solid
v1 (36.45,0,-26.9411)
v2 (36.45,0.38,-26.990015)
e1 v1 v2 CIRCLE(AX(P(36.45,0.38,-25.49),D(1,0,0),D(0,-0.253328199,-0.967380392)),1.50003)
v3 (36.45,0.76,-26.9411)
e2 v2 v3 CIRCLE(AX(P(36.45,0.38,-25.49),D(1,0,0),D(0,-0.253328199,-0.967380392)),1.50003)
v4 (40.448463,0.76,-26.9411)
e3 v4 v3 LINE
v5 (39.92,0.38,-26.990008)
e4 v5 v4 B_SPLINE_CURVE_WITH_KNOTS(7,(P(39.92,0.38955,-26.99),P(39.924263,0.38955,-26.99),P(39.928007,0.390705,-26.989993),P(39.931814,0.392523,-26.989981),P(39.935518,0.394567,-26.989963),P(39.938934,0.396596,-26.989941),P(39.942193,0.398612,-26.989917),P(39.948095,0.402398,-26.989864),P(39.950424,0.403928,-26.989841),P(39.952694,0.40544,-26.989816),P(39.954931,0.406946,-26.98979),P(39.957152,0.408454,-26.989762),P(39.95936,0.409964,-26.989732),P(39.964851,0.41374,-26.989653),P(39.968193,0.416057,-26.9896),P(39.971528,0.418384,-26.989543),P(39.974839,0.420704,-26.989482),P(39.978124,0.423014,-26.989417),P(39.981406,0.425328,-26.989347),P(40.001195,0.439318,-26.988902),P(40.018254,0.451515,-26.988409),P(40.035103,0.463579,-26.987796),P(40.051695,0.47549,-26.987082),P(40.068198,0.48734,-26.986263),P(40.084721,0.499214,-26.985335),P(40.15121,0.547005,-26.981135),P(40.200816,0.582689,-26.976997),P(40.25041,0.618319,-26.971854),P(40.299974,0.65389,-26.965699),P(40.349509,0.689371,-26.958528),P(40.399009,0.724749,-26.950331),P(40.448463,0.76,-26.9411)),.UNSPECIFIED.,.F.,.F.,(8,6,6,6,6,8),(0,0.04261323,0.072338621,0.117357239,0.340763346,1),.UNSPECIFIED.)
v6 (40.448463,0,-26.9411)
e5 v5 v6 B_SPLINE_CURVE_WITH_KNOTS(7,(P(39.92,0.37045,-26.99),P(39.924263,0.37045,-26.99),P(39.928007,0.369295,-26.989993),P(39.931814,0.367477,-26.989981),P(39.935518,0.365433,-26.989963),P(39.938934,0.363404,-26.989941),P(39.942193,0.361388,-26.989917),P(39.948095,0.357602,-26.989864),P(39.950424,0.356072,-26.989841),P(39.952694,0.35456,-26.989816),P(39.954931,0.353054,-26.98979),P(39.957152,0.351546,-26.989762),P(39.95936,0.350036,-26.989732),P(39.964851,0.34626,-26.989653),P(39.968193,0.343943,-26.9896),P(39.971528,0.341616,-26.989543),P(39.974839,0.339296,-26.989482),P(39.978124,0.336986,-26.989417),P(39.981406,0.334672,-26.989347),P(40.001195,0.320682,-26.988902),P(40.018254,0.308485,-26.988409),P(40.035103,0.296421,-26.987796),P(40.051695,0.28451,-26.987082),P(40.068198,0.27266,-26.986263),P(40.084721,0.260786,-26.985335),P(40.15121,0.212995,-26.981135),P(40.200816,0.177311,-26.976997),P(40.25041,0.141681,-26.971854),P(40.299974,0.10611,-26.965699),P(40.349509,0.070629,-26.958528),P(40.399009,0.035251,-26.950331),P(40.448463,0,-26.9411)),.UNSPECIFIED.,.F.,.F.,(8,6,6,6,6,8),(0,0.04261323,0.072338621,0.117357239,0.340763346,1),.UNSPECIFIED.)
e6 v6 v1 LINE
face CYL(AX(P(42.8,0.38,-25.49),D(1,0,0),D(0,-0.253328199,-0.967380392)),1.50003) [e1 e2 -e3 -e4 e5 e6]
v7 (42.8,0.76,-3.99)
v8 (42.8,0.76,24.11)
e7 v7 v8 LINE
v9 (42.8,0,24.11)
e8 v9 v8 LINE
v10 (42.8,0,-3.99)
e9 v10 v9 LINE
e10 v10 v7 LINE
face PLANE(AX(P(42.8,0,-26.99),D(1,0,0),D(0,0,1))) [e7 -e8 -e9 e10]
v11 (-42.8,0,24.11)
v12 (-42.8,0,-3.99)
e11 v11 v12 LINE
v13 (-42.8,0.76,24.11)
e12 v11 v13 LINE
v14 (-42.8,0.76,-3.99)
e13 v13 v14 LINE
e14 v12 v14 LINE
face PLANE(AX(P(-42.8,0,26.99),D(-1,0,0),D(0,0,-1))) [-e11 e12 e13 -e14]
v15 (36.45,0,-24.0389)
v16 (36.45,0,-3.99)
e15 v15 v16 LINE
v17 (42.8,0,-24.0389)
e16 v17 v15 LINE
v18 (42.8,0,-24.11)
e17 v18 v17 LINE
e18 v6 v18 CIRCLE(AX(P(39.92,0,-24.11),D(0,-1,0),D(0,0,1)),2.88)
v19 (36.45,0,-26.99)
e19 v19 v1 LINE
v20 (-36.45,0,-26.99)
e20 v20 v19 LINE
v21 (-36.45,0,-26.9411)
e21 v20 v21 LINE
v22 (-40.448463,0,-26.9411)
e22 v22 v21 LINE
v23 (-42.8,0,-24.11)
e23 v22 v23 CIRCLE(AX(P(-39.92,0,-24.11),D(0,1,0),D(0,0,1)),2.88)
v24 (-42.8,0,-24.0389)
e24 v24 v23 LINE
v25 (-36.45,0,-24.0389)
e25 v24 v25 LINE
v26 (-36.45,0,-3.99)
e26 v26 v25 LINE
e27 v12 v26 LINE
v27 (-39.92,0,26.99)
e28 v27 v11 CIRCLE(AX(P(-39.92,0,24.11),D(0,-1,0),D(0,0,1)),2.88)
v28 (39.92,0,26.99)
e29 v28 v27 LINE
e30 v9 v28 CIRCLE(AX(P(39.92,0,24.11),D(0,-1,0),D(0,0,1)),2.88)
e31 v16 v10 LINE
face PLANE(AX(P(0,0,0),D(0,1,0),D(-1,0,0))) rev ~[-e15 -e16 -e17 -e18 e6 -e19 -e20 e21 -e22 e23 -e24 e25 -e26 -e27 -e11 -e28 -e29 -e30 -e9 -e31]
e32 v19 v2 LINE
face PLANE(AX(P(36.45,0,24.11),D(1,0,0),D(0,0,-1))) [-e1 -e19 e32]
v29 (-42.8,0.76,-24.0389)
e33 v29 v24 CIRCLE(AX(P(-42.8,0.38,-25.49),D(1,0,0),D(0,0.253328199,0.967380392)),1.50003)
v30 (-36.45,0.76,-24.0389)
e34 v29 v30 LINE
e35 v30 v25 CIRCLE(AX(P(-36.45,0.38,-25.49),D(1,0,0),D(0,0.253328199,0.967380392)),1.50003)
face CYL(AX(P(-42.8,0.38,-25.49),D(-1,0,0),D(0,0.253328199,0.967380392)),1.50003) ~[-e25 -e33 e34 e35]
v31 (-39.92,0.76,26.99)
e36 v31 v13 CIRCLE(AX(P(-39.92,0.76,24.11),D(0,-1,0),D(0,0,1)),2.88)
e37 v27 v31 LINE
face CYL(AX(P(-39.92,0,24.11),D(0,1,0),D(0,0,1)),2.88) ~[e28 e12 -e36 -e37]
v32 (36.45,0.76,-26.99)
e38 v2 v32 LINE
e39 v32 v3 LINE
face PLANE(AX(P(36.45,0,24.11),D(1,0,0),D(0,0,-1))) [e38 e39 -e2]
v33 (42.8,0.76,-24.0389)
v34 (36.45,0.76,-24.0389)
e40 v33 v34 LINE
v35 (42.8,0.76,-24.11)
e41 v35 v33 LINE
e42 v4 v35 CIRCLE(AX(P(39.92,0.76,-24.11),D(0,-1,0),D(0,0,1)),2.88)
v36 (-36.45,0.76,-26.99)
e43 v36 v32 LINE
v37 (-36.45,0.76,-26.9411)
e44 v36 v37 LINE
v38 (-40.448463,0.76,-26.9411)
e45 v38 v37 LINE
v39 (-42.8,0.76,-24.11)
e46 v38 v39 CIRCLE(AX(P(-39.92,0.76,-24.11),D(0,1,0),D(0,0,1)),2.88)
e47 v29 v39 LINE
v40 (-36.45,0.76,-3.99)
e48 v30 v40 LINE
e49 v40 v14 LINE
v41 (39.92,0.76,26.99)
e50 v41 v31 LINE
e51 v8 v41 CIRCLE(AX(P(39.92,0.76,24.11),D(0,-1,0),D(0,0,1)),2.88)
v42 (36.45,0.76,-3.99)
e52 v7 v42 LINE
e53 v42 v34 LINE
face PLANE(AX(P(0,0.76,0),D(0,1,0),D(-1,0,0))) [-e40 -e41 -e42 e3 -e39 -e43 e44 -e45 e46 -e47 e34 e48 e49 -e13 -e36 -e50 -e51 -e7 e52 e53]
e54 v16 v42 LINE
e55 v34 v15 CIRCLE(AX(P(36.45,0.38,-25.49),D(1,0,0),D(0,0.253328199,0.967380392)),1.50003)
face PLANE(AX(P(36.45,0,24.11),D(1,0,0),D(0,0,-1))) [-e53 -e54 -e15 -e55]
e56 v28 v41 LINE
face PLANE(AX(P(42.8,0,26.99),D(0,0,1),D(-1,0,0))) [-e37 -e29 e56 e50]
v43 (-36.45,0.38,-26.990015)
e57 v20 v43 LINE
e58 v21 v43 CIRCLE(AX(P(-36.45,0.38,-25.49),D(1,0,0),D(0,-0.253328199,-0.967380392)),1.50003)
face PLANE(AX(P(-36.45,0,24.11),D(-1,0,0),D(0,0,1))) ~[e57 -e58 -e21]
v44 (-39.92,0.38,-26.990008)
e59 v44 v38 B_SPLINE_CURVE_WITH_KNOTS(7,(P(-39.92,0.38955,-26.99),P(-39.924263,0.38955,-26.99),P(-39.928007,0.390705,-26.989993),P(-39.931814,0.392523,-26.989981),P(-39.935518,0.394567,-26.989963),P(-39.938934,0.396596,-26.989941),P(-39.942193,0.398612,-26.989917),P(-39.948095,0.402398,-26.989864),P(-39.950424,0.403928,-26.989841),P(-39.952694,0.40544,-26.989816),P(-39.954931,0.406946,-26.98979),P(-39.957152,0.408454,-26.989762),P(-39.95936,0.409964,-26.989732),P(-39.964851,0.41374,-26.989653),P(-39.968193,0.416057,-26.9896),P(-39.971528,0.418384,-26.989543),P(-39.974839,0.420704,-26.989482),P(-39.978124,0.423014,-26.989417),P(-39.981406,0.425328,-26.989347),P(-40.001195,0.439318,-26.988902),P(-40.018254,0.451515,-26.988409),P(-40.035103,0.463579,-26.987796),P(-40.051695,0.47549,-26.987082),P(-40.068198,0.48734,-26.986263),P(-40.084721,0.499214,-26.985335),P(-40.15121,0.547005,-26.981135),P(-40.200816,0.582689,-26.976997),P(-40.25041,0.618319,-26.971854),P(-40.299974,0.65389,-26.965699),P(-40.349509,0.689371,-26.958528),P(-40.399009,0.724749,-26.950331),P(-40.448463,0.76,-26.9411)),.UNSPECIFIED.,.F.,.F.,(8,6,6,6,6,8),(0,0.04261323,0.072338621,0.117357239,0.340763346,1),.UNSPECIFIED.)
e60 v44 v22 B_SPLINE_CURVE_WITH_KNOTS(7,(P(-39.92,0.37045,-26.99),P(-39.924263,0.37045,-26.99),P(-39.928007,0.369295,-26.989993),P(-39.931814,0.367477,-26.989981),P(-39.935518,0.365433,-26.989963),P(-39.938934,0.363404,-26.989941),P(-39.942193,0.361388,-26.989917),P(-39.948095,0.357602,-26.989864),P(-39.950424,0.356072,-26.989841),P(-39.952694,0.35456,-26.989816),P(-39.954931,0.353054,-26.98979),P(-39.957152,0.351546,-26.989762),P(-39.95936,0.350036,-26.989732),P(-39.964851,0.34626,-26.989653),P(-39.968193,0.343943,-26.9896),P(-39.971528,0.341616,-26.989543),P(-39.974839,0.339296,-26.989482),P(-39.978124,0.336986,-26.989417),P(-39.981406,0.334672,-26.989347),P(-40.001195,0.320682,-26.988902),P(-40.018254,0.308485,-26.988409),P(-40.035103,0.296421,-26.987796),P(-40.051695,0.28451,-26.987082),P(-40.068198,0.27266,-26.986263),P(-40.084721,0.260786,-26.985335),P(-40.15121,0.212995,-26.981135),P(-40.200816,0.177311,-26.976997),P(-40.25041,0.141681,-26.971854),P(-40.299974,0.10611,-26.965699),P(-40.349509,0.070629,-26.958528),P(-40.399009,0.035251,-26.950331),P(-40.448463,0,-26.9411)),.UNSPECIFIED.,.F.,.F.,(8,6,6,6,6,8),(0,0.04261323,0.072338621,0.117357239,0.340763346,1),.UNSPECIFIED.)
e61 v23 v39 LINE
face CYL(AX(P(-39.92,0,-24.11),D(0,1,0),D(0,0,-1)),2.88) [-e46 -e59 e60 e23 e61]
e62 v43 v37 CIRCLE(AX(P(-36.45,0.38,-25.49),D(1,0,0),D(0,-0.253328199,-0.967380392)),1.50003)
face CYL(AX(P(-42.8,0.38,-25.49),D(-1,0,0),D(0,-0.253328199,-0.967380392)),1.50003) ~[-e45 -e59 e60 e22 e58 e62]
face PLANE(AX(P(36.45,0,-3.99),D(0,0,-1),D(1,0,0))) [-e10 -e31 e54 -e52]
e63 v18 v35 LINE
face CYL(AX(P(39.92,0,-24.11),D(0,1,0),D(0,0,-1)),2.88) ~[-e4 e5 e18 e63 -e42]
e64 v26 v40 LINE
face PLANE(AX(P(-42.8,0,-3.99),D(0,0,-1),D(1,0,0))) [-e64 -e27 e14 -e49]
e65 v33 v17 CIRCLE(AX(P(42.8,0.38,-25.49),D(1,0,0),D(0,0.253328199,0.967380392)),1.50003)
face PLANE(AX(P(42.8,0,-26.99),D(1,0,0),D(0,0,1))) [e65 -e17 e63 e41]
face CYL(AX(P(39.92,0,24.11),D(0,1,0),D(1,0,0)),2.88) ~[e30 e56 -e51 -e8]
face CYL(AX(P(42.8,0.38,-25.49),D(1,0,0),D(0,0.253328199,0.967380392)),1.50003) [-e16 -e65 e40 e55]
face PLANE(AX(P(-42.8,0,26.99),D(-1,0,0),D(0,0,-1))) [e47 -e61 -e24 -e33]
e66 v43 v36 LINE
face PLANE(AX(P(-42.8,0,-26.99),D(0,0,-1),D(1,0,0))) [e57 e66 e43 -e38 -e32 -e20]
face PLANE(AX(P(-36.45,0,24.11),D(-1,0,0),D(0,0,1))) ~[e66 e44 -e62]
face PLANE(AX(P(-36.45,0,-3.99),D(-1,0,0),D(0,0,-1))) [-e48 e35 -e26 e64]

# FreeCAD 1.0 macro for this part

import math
import FreeCAD as App
import Part
import Sketcher
Q = App.Units.Quantity


def edges_at(feature, points):
    """Names of the edges that pass closest to the given points."""
    edges = feature.Shape.Edges
    near = lambda p: min(range(len(edges)), key=lambda i: edges[i].distToShape(Part.Vertex(*p))[0])
    return sorted({f"Edge{near(p) + 1}" for p in points})


def add_polygon(sketch, points):
    """Adds a closed chain of lines whose ends are joined by coincident constraints."""
    first, n = sketch.GeometryCount, len(points)
    for a, b in zip(points, points[1:] + points[:1]):
        sketch.addGeometry(Part.LineSegment(App.Vector(*a, 0), App.Vector(*b, 0)), False)
    for i in range(n):
        sketch.addConstraint(Sketcher.Constraint("Coincident", first + i, 2, first + (i + 1) % n, 1))

doc = App.newDocument("Part")
body = doc.addObject("PartDesign::Body", "Body")

# Sketch on XZ plane
sketch1 = body.newObject("Sketcher::SketchObject", "Sketch")
sketch1.AttachmentSupport = (doc.getObject("XZ_Plane"), [""])
sketch1.MapMode = "FlatFace"
add_polygon(sketch1, [(43, -27), (-43, -27), (-43, 27), (43, 27)])  # lines 0-3
sketch1.addConstraint(Sketcher.Constraint("Horizontal", 0))
sketch1.addConstraint(Sketcher.Constraint("Vertical", 1))
sketch1.addConstraint(Sketcher.Constraint("Horizontal", 2))
sketch1.addConstraint(Sketcher.Constraint("Vertical", 3))
sketch1.addConstraint(Sketcher.Constraint("Symmetric", 0, 2, 2, 2, -1, 1))
sketch1.addConstraint(Sketcher.Constraint("DistanceX", 0, 2, 0, 1, Q("85.6 mm")))
sketch1.addConstraint(Sketcher.Constraint("DistanceY", 1, 1, 1, 2, Q("53.98 mm")))
pad1 = body.newObject("PartDesign::Pad", "Pad")
pad1.Profile = sketch1
pad1.Length = 0.76
pad1.Reversed = True
doc.recompute()

fillet = body.newObject("PartDesign::Fillet", "Fillet")
fillet.Base = (pad1, edges_at(pad1, [
    (42.8, 0.38, 26.99),
    (42.8, 0.38, -26.99),
    (-42.8, 0.38, 26.99),
    (-42.8, 0.38, -26.99),
]))
fillet.Radius = 2.88

# Sketch on XZ plane
sketch2 = body.newObject("Sketcher::SketchObject", "Sketch001")
sketch2.AttachmentSupport = (doc.getObject("XZ_Plane"), [""])
sketch2.MapMode = "FlatFace"
add_polygon(sketch2, [(-43, -4), (-43, -24), (-36, -24), (-36, -4)])  # lines 0-3
add_polygon(sketch2, [(36, -24), (43, -24), (43, -4), (36, -4)])  # lines 4-7
sketch2.addConstraint(Sketcher.Constraint("Vertical", 0))
sketch2.addConstraint(Sketcher.Constraint("Horizontal", 1))
sketch2.addConstraint(Sketcher.Constraint("Vertical", 2))
sketch2.addConstraint(Sketcher.Constraint("Horizontal", 3))
sketch2.addConstraint(Sketcher.Constraint("Horizontal", 4))
sketch2.addConstraint(Sketcher.Constraint("Vertical", 5))
sketch2.addConstraint(Sketcher.Constraint("Horizontal", 6))
sketch2.addConstraint(Sketcher.Constraint("Vertical", 7))
sketch2.addConstraint(Sketcher.Constraint("Symmetric", 0, 2, 4, 2, -2))
sketch2.addConstraint(Sketcher.Constraint("Symmetric", 2, 2, 6, 2, -2))
sketch2.addConstraint(Sketcher.Constraint("DistanceY", 0, 2, 0, 1, Q("20 mm")))
sketch2.addConstraint(Sketcher.Constraint("DistanceX", 1, 1, 1, 2, Q("6.35 mm")))
sketch2.addConstraint(Sketcher.Constraint("DistanceX", 0, 2, -1, 1, Q("42.8 mm")))
sketch2.addConstraint(Sketcher.Constraint("DistanceY", 0, 2, -1, 1, Q("23.99 mm")))
pocket1 = body.newObject("PartDesign::Pocket", "Pocket")
pocket1.Profile = sketch2
pocket1.Type = "ThroughAll"

# Sketch on YZ plane
sketch3 = body.newObject("Sketcher::SketchObject", "Sketch002")
sketch3.AttachmentSupport = (doc.getObject("YZ_Plane"), [""])
sketch3.MapMode = "FlatFace"
sketch3.AttachmentOffset = App.Placement(App.Vector(0, 0, 42.8), App.Rotation())
sketch3.addGeometry(Part.LineSegment(App.Vector(0, -26.941, 0), App.Vector(0, -26.99, 0)), False)
sketch3.addGeometry(Part.LineSegment(App.Vector(0, -26.99, 0), App.Vector(0.38, -26.99, 0)), False)
sketch3.addGeometry(Part.ArcOfCircle(Part.Circle(App.Vector(0.38, -25.49, 0), App.Vector(0, 0, 1), 1.5), math.radians(-104.67), math.radians(-90)), False)
sketch3.addGeometry(Part.ArcOfCircle(Part.Circle(App.Vector(0.38, -25.49, 0), App.Vector(0, 0, 1), 1.5), math.radians(-90), math.radians(-75.33)), False)
sketch3.addGeometry(Part.LineSegment(App.Vector(0.38, -26.99, 0), App.Vector(0.76, -26.99, 0)), False)
sketch3.addGeometry(Part.LineSegment(App.Vector(0.76, -26.99, 0), App.Vector(0.76, -26.941, 0)), False)
sketch3.addGeometry(Part.LineSegment(App.Vector(0.76, -24.039, 0), App.Vector(0.76, -23.99, 0)), False)
sketch3.addGeometry(Part.LineSegment(App.Vector(0.76, -23.99, 0), App.Vector(0.38, -23.99, 0)), False)
sketch3.addGeometry(Part.ArcOfCircle(Part.Circle(App.Vector(0.38, -25.49, 0), App.Vector(0, 0, 1), 1.5), math.radians(75.33), math.radians(90)), False)
sketch3.addGeometry(Part.ArcOfCircle(Part.Circle(App.Vector(0.38, -25.49, 0), App.Vector(0, 0, 1), 1.5), math.radians(90), math.radians(104.67)), False)
sketch3.addGeometry(Part.LineSegment(App.Vector(0.38, -23.99, 0), App.Vector(0, -23.99, 0)), False)
sketch3.addGeometry(Part.LineSegment(App.Vector(0, -23.99, 0), App.Vector(0, -24.039, 0)), False)
sketch3.addConstraint(Sketcher.Constraint("Coincident", 0, 2, 1, 1))
sketch3.addConstraint(Sketcher.Constraint("Tangent", 1, 2, 2, 2))
sketch3.addConstraint(Sketcher.Constraint("Coincident", 2, 1, 0, 1))
sketch3.addConstraint(Sketcher.Constraint("Tangent", 3, 1, 4, 1))
sketch3.addConstraint(Sketcher.Constraint("Coincident", 4, 2, 5, 1))
sketch3.addConstraint(Sketcher.Constraint("Coincident", 5, 2, 3, 2))
sketch3.addConstraint(Sketcher.Constraint("Coincident", 6, 2, 7, 1))
sketch3.addConstraint(Sketcher.Constraint("Tangent", 7, 2, 8, 2))
sketch3.addConstraint(Sketcher.Constraint("Coincident", 8, 1, 6, 1))
sketch3.addConstraint(Sketcher.Constraint("Tangent", 9, 1, 10, 1))
sketch3.addConstraint(Sketcher.Constraint("Coincident", 10, 2, 11, 1))
sketch3.addConstraint(Sketcher.Constraint("Coincident", 11, 2, 9, 2))
sketch3.addConstraint(Sketcher.Constraint("Vertical", 0))
sketch3.addConstraint(Sketcher.Constraint("Horizontal", 1))
sketch3.addConstraint(Sketcher.Constraint("Horizontal", 4))
sketch3.addConstraint(Sketcher.Constraint("Vertical", 5))
sketch3.addConstraint(Sketcher.Constraint("Vertical", 6))
sketch3.addConstraint(Sketcher.Constraint("Horizontal", 7))
sketch3.addConstraint(Sketcher.Constraint("Horizontal", 10))
sketch3.addConstraint(Sketcher.Constraint("Vertical", 11))
sketch3.addConstraint(Sketcher.Constraint("Coincident", 3, 3, 2, 3))
sketch3.addConstraint(Sketcher.Constraint("Coincident", 8, 3, 2, 3))
sketch3.addConstraint(Sketcher.Constraint("Coincident", 9, 3, 2, 3))
sketch3.addConstraint(Sketcher.Constraint("Equal", 2, 3))
sketch3.addConstraint(Sketcher.Constraint("Equal", 3, 8))
sketch3.addConstraint(Sketcher.Constraint("Equal", 8, 9))
sketch3.addConstraint(Sketcher.Constraint("PointOnObject", 0, 2, -2))
sketch3.addConstraint(Sketcher.Constraint("PointOnObject", 10, 2, -2))
sketch3.addConstraint(Sketcher.Constraint("Horizontal", 2, 1, 5, 2))
sketch3.addConstraint(Sketcher.Constraint("Horizontal", 8, 1, 11, 2))
sketch3.addConstraint(Sketcher.Constraint("Radius", 2, Q("1.5 mm")))
sketch3.addConstraint(Sketcher.Constraint("DistanceX", -1, 1, 4, 2, Q("0.76 mm")))
sketch3.addConstraint(Sketcher.Constraint("DistanceY", 2, 3, -1, 1, Q("25.49 mm")))
pocket2 = body.newObject("PartDesign::Pocket", "Pocket001")
pocket2.Profile = sketch3
pocket2.Length = 6.35
doc.recompute()

mirrored = body.newObject("PartDesign::Mirrored", "Mirrored")
mirrored.Originals = [pocket2]
mirrored.MirrorPlane = (doc.getObject("YZ_Plane"), [""])
body.Tip = mirrored

doc.recompute()
